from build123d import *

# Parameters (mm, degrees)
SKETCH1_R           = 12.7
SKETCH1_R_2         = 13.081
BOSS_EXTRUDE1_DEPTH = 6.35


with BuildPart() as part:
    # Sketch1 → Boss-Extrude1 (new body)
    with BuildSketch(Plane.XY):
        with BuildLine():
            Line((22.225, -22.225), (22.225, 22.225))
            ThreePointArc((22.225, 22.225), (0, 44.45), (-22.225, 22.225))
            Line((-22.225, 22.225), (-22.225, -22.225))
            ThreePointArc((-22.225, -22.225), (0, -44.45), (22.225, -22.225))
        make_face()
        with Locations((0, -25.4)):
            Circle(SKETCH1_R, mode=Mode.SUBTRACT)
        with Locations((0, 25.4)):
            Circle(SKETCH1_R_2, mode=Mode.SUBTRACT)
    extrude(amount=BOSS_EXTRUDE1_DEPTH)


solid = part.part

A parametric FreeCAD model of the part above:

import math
import FreeCAD as App
import Part
import Sketcher
from FreeCAD import Vector
Q = App.Units.Quantity

doc = App.newDocument("Part")
body = doc.addObject("PartDesign::Body", "Body")

sketch1 = body.newObject("Sketcher::SketchObject", "Sketch")
sketch1.AttachmentSupport = (doc.getObject("XY_Plane"), [""])
sketch1.MapMode = "FlatFace"
sketch1.addGeometry([
    Part.LineSegment(Vector(22.225, -22.225, 0), Vector(22.225, 22.225, 0)),
    Part.ArcOfCircle(Part.Circle(Vector(0, 22.225, 0), Vector(0, 0, 1), 22.225), math.radians(0), math.radians(180)),
    Part.LineSegment(Vector(-22.225, 22.225, 0), Vector(-22.225, -22.225, 0)),
    Part.ArcOfCircle(Part.Circle(Vector(0, -22.225, 0), Vector(0, 0, 1), 22.225), math.radians(180), math.radians(360)),
    Part.Circle(Vector(0, -25.4, 0), Vector(0, 0, 1), 12.7),
    Part.Circle(Vector(0, 25.4, 0), Vector(0, 0, 1), 13.081),
], False)
sketch1.addConstraint([
    Sketcher.Constraint("Tangent", 0, 2, 1, 1),
    Sketcher.Constraint("Tangent", 1, 2, 2, 1),
    Sketcher.Constraint("Tangent", 2, 2, 3, 1),
    Sketcher.Constraint("Tangent", 3, 2, 0, 1),
    Sketcher.Constraint("Vertical", 0),
    Sketcher.Constraint("Vertical", 2),
    Sketcher.Constraint("Symmetric", 1, 3, 3, 3, -1, 1),
    Sketcher.Constraint("Symmetric", 4, 3, 5, 3, -1, 1),
    Sketcher.Constraint("PointOnObject", 4, 3, -2),
    Sketcher.Constraint("Diameter", 4, Q("1 in")),
    Sketcher.Constraint("Diameter", 5, Q("1.03 in")),
    Sketcher.Constraint("DistanceY", 4, 3, -1, 1, Q("1 in")),
    Sketcher.Constraint("Radius", 1, Q("0.875 in")),
    Sketcher.Constraint("DistanceY", 0, 1, 0, 2, Q("1.75 in")),
])
pad1 = body.newObject("PartDesign::Pad", "Pad")
pad1.Profile = sketch1
pad1.Length = Q("0.25 in")

doc.recompute()
